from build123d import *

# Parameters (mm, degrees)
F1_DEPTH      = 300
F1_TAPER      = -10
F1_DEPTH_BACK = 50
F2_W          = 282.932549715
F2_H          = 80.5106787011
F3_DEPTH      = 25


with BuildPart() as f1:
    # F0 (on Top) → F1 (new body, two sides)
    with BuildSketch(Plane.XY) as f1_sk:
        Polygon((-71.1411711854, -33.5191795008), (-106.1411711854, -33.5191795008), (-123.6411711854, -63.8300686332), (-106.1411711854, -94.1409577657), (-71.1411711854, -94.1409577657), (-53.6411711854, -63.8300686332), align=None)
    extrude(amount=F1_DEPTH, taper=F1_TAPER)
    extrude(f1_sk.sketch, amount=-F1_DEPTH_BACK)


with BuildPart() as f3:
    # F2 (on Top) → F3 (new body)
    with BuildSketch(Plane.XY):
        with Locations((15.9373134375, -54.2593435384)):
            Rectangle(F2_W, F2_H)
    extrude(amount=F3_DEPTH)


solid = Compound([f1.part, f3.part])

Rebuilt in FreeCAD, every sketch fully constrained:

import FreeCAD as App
import Part
import Sketcher
from FreeCAD import Vector
Q = App.Units.Quantity

doc = App.newDocument("Part")
body = doc.addObject("PartDesign::Body", "Body")

sketch1 = body.newObject("Sketcher::SketchObject", "Sketch")
sketch1.AttachmentSupport = (doc.getObject("XY_Plane"), [""])
sketch1.MapMode = "FlatFace"
sketch1.addGeometry(Part.LineSegment(Vector(-71.141171, -33.51918, 0), Vector(-106.141171, -33.51918, 0)), False)
sketch1.addGeometry(Part.LineSegment(Vector(-106.141171, -33.51918, 0), Vector(-123.641171, -63.830069, 0)), False)
sketch1.addGeometry(Part.LineSegment(Vector(-123.641171, -63.830069, 0), Vector(-106.141171, -94.140958, 0)), False)
sketch1.addGeometry(Part.LineSegment(Vector(-106.141171, -94.140958, 0), Vector(-71.141171, -94.140958, 0)), False)
sketch1.addGeometry(Part.LineSegment(Vector(-71.141171, -94.140958, 0), Vector(-53.641171, -63.830069, 0)), False)
sketch1.addGeometry(Part.LineSegment(Vector(-53.641171, -63.830069, 0), Vector(-71.141171, -33.51918, 0)), False)
sketch1.addConstraint(Sketcher.Constraint("Coincident", 0, 2, 1, 1))
sketch1.addConstraint(Sketcher.Constraint("Coincident", 1, 2, 2, 1))
sketch1.addConstraint(Sketcher.Constraint("Coincident", 2, 2, 3, 1))
sketch1.addConstraint(Sketcher.Constraint("Coincident", 3, 2, 4, 1))
sketch1.addConstraint(Sketcher.Constraint("Coincident", 4, 2, 5, 1))
sketch1.addConstraint(Sketcher.Constraint("Coincident", 5, 2, 0, 1))
sketch1.addConstraint(Sketcher.Constraint("Horizontal", 0))
sketch1.addConstraint(Sketcher.Constraint("Horizontal", 3))
sketch1.addConstraint(Sketcher.Constraint("Parallel", 1, 4))
sketch1.addConstraint(Sketcher.Constraint("Parallel", 2, 5))
sketch1.addConstraint(Sketcher.Constraint("Horizontal", 1, 2, 4, 2))
sketch1.addConstraint(Sketcher.Constraint("Vertical", 0, 2, 2, 2))
sketch1.addConstraint(Sketcher.Constraint("Vertical", 3, 2, 5, 2))
sketch1.addConstraint(Sketcher.Constraint("DistanceX", 0, 2, 0, 1, 35.0))
sketch1.addConstraint(Sketcher.Constraint("Angle", 1, Q("-120 deg")))
sketch1.addConstraint(Sketcher.Constraint("Distance", 1, 35.0))
sketch1.addConstraint(Sketcher.Constraint("DistanceX", 0, 2, -1, 1, 106.141171))
sketch1.addConstraint(Sketcher.Constraint("DistanceY", 0, 2, -1, 1, 33.51918))
pad1 = body.newObject("PartDesign::Pad", "Pad")
pad1.Profile = sketch1
pad1.Length = 300
pad1.TaperAngle = 10
pad2 = body.newObject("PartDesign::Pad", "Pad001")
pad2.Profile = sketch1
pad2.Length = 50
pad2.Reversed = True
body2 = doc.addObject("PartDesign::Body", "Body001")

sketch2 = body2.newObject("Sketcher::SketchObject", "Sketch001")
sketch2.AttachmentSupport = (doc.getObject("XY_Plane001"), [""])
sketch2.MapMode = "FlatFace"
sketch2.addGeometry(Part.LineSegment(Vector(-125.528961, -14.004004, 0), Vector(-125.528961, -94.514683, 0)), False)
sketch2.addGeometry(Part.LineSegment(Vector(-125.528961, -94.514683, 0), Vector(157.403588, -94.514683, 0)), False)
sketch2.addGeometry(Part.LineSegment(Vector(157.403588, -94.514683, 0), Vector(157.403588, -14.004004, 0)), False)
sketch2.addGeometry(Part.LineSegment(Vector(157.403588, -14.004004, 0), Vector(-125.528961, -14.004004, 0)), False)
sketch2.addConstraint(Sketcher.Constraint("Coincident", 0, 2, 1, 1))
sketch2.addConstraint(Sketcher.Constraint("Coincident", 1, 2, 2, 1))
sketch2.addConstraint(Sketcher.Constraint("Coincident", 2, 2, 3, 1))
sketch2.addConstraint(Sketcher.Constraint("Coincident", 3, 2, 0, 1))
sketch2.addConstraint(Sketcher.Constraint("Vertical", 0))
sketch2.addConstraint(Sketcher.Constraint("Horizontal", 1))
sketch2.addConstraint(Sketcher.Constraint("Vertical", 2))
sketch2.addConstraint(Sketcher.Constraint("Horizontal", 3))
sketch2.addConstraint(Sketcher.Constraint("DistanceX", 1, 1, 1, 2, 282.93255))
sketch2.addConstraint(Sketcher.Constraint("DistanceY", 0, 2, 0, 1, 80.510679))
sketch2.addConstraint(Sketcher.Constraint("DistanceX", 0, 2, -1, 1, 125.528961))
sketch2.addConstraint(Sketcher.Constraint("DistanceY", 0, 2, -1, 1, 94.514683))
pad3 = body2.newObject("PartDesign::Pad", "Pad002")
pad3.Profile = sketch2
pad3.Length = 25

doc.recompute()
